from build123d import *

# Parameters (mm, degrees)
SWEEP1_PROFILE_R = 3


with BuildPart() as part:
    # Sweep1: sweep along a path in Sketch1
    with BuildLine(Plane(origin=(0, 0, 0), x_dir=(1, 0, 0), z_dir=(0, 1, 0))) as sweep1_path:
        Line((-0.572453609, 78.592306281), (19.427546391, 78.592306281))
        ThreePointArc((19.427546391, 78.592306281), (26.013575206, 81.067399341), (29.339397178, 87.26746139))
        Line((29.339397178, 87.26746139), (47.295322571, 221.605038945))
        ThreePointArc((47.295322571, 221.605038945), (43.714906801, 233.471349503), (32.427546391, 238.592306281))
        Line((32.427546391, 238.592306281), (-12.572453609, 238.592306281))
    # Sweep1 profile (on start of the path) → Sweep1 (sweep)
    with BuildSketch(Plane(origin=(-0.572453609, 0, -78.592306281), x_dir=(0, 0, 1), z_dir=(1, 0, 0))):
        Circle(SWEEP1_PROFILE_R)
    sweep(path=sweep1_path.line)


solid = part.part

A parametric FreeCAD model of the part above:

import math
import FreeCAD as App
import Part
import Sketcher
from FreeCAD import Vector

doc = App.newDocument("Part")
params = doc.addObject("Spreadsheet::Sheet", "Params")
for row, (alias, value) in enumerate([
    ("sketch1_diameter", "6 mm"),
    ("sketch2_radius", "10 mm"),
    ("sketch2_radius2", "15 mm"),
    ("sketch2_width", "20 mm"),
    ("sketch2_width2", "45 mm"),
], start=1):
    params.set(f"A{row}", alias)
    params.set(f"B{row}", "=" + value)
    params.setAlias(f"B{row}", alias)

body = doc.addObject("PartDesign::Body", "Body")

sketch1 = body.newObject("Sketcher::SketchObject", "Sketch")
sketch1.AttachmentSupport = (doc.getObject("YZ_Plane"), [""])
sketch1.MapMode = "FlatFace"
sketch1.AttachmentOffset = App.Placement(Vector(0, 0, -0.572454), App.Rotation())
sketch1.addGeometry(Part.Circle(Vector(0, -78.592306, 0), Vector(0, 0, 1), 3), False)
sketch1.addConstraint([
    Sketcher.Constraint("PointOnObject", 0, 3, -2),
    Sketcher.Constraint("Diameter", 0, 6.0),
    Sketcher.Constraint("DistanceY", 0, 3, -1, 1, 78.592306),
])
sketch1.setExpression("Constraints[1]", "Params.sketch1_diameter")

sketch2 = body.newObject("Sketcher::SketchObject", "Sketch001")
sketch2.AttachmentSupport = (doc.getObject("XZ_Plane"), [""])
sketch2.MapMode = "FlatFace"
sketch2.addGeometry([
    Part.LineSegment(Vector(-0.572454, -78.592306, 0), Vector(19.427546, -78.592306, 0)),
    Part.ArcOfCircle(Part.Circle(Vector(19.427546, -88.592306, 0), Vector(0, 0, 1), 10), math.radians(7.613185), math.radians(90)),
    Part.LineSegment(Vector(29.339397, -87.267461, 0), Vector(47.295323, -221.605039, 0)),
    Part.ArcOfCircle(Part.Circle(Vector(32.427546, -223.592306, 0), Vector(0, 0, 1), 15), math.radians(-90), math.radians(7.613185)),
    Part.LineSegment(Vector(32.427546, -238.592306, 0), Vector(-12.572454, -238.592306, 0)),
], False)
sketch2.addConstraint([
    Sketcher.Constraint("Tangent", 0, 2, 1, 2),
    Sketcher.Constraint("Tangent", 1, 1, 2, 1),
    Sketcher.Constraint("Tangent", 2, 2, 3, 2),
    Sketcher.Constraint("Tangent", 3, 1, 4, 1),
    Sketcher.Constraint("Horizontal", 0),
    Sketcher.Constraint("Horizontal", 4),
    Sketcher.Constraint("Radius", 1, 10.0),
    Sketcher.Constraint("Radius", 3, 15.0),
    Sketcher.Constraint("DistanceX", 0, 1, 0, 2, 20.0),
    Sketcher.Constraint("DistanceX", 4, 2, 4, 1, 45.0),
    Sketcher.Constraint("DistanceX", 1, 3, 3, 3, 13.0),
    Sketcher.Constraint("DistanceY", 3, 3, 1, 3, 135.0),
    Sketcher.Constraint("DistanceY", 1, 1, -1, 1, 87.267461),
    Sketcher.Constraint("DistanceX", -1, 1, 1, 3, 19.427546),
])
sketch2.setExpression("Constraints[6]", "Params.sketch2_radius")
sketch2.setExpression("Constraints[7]", "Params.sketch2_radius2")
sketch2.setExpression("Constraints[8]", "Params.sketch2_width")
sketch2.setExpression("Constraints[9]", "Params.sketch2_width2")
doc.recompute()

additivepipe = body.newObject("PartDesign::AdditivePipe", "AdditivePipe")
additivepipe.Profile = sketch1
additivepipe.Spine = (sketch2, ["Edge1", "Edge2", "Edge3", "Edge4", "Edge5"])

doc.recompute()
